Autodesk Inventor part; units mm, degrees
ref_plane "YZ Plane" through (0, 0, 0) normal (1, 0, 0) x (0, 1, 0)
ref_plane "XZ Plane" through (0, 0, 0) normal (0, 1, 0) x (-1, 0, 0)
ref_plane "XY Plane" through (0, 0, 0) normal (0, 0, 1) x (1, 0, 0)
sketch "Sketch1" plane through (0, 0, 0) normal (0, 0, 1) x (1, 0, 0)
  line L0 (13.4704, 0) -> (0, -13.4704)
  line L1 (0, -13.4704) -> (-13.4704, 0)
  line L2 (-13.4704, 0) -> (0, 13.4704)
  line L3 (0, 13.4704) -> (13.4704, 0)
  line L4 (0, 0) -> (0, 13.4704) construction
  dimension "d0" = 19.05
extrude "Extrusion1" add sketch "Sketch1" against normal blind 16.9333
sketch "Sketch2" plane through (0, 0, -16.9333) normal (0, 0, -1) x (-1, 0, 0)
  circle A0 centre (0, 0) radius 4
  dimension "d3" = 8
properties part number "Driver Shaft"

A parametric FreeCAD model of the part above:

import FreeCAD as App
import Part
import Sketcher
Q = App.Units.Quantity


def add_polygon(sketch, points):
    """Adds a closed chain of lines whose ends are joined by coincident constraints."""
    first, n = sketch.GeometryCount, len(points)
    for a, b in zip(points, points[1:] + points[:1]):
        sketch.addGeometry(Part.LineSegment(App.Vector(*a, 0), App.Vector(*b, 0)), False)
    for i in range(n):
        sketch.addConstraint(Sketcher.Constraint("Coincident", first + i, 2, first + (i + 1) % n, 1))

doc = App.newDocument("Part")
body = doc.addObject("PartDesign::Body", "Body")

# Sketch on XY plane
sketch1 = doc.addObject("Sketcher::SketchObject", "Sketch")
body.addObject(sketch1)
sketch1.AttachmentSupport = (doc.XY_Plane, [""])
sketch1.MapMode = "FlatFace"
add_polygon(sketch1, [(0, -13.4704), (13.4704, 0), (0, 13.4704), (-13.4704, 0)])  # lines 0-3
sketch1.addConstraint(Sketcher.Constraint("Symmetric", 0, 2, 2, 2, -1, 1))
sketch1.addConstraint(Sketcher.Constraint("Symmetric", 1, 2, 3, 2, -1, 1))
sketch1.addConstraint(Sketcher.Constraint("PointOnObject", 0, 2, -1))
sketch1.addConstraint(Sketcher.Constraint("PointOnObject", 1, 2, -2))
sketch1.addConstraint(Sketcher.Constraint("Perpendicular", 0, 1))
sketch1.addConstraint(Sketcher.Constraint("Distance", 0, Q("0.75 in")))
pad1 = doc.addObject("PartDesign::Pad", "Pad")
body.addObject(pad1)
pad1.Profile = sketch1
pad1.Length = 16.9333
pad1.Reversed = True

doc.recompute()
